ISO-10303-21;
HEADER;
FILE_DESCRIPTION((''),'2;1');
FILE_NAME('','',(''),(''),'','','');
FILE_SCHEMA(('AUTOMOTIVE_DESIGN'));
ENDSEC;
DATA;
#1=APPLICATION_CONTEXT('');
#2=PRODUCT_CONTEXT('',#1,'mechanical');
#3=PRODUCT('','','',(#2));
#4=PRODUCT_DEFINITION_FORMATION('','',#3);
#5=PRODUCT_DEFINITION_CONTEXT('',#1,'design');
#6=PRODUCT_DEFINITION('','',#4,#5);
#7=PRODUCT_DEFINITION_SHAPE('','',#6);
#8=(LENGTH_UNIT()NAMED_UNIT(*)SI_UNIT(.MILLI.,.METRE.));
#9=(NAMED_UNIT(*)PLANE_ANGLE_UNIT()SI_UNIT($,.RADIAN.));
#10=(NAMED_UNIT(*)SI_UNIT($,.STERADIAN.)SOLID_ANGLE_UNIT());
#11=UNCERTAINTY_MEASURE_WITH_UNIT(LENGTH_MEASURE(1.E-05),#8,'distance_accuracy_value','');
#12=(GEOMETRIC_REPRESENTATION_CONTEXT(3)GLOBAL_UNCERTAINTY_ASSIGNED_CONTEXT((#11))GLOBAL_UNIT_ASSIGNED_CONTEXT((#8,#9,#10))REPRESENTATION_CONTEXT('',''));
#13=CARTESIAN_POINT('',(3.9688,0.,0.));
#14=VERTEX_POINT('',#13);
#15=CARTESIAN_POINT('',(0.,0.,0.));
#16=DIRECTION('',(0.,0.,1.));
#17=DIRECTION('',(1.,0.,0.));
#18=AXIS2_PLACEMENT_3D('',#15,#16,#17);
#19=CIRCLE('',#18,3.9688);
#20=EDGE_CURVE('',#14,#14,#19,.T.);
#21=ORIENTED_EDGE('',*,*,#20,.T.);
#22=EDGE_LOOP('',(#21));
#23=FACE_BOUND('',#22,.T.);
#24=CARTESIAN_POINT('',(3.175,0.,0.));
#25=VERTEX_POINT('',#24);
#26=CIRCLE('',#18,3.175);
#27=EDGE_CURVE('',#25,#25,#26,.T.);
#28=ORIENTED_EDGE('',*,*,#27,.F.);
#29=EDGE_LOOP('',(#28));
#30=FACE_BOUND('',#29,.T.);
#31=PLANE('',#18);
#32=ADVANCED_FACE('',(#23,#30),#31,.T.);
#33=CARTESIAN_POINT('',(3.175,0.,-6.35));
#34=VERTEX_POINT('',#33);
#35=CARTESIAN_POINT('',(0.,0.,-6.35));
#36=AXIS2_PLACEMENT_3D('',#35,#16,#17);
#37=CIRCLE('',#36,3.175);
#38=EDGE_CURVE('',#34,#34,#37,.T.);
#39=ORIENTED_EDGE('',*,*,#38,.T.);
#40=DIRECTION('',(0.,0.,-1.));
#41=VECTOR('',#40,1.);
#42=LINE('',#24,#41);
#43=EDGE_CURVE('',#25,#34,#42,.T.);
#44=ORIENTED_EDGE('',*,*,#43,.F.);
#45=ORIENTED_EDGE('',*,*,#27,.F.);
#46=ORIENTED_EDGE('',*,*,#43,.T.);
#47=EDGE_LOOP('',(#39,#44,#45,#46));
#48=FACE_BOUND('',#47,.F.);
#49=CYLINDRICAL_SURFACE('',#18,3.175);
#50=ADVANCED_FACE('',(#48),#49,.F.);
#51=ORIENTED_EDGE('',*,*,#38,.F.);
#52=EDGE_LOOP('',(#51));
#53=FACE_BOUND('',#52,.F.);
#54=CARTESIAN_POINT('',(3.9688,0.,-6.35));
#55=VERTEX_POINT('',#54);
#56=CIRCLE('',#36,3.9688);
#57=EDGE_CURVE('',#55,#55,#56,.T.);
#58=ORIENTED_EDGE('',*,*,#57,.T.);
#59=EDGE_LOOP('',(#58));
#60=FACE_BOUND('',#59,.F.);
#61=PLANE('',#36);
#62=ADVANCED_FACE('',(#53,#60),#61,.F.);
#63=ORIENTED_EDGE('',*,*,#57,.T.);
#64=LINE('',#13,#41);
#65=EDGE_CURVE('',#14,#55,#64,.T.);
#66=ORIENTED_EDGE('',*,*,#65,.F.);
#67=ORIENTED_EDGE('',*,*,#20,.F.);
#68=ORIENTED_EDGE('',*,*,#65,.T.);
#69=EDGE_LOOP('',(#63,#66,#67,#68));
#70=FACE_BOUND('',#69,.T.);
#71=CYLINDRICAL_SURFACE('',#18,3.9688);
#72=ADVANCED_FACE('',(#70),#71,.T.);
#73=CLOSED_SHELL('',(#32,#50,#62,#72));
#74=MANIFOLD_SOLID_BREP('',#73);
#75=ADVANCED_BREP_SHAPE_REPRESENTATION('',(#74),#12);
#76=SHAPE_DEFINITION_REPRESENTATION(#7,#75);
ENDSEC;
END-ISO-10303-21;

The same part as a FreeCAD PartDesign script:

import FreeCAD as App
import Part
import Sketcher
from FreeCAD import Vector
Q = App.Units.Quantity

doc = App.newDocument("Part")
params = doc.addObject("Spreadsheet::Sheet", "Params")
for row, (alias, value) in enumerate([
    ("sketch1_diameter", "0.25 in"),
    ("sketch1_diameter2", "0.3125 in"),
    ("pad1_length", "0.25 in"),
], start=1):
    params.set(f"A{row}", alias)
    params.set(f"B{row}", "=" + value)
    params.setAlias(f"B{row}", alias)

body = doc.addObject("PartDesign::Body", "Body")

sketch1 = body.newObject("Sketcher::SketchObject", "Sketch")
sketch1.AttachmentSupport = (doc.getObject("XY_Plane"), [""])
sketch1.MapMode = "FlatFace"
sketch1.addGeometry([
    Part.Circle(Vector(0, 0, 0), Vector(0, 0, 1), 4),
    Part.Circle(Vector(0, 0, 0), Vector(0, 0, 1), 3.2),
], False)
sketch1.addConstraint([
    Sketcher.Constraint("Coincident", 0, 3, -1, 1),
    Sketcher.Constraint("Coincident", 1, 3, -1, 1),
    Sketcher.Constraint("Diameter", 1, Q("0.25 in")),
    Sketcher.Constraint("Diameter", 0, Q("0.3125 in")),
])
sketch1.setExpression("Constraints[2]", "Params.sketch1_diameter")
sketch1.setExpression("Constraints[3]", "Params.sketch1_diameter2")
pad1 = body.newObject("PartDesign::Pad", "Pad")
pad1.Profile = sketch1
pad1.setExpression("Length", "Params.pad1_length")
pad1.Reversed = True

doc.recompute()
